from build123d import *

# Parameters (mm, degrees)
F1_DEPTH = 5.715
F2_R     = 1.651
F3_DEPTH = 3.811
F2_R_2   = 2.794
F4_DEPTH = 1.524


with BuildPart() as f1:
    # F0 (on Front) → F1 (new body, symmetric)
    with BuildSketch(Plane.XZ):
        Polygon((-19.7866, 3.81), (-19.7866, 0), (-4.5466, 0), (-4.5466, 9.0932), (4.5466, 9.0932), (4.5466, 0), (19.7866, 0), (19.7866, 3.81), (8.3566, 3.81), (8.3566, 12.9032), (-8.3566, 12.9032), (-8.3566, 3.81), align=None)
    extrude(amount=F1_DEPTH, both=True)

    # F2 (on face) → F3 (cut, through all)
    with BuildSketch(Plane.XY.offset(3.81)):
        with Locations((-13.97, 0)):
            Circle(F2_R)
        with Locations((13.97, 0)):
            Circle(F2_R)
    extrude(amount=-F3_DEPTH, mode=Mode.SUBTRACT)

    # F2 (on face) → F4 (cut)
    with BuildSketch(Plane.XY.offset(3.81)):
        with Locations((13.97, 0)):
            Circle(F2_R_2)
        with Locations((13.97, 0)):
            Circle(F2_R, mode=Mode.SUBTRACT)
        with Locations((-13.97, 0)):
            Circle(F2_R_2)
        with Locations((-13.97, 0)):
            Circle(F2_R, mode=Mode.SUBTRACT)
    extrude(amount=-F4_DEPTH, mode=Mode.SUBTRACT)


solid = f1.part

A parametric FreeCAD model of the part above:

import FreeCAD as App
import Part
import Sketcher
Q = App.Units.Quantity

doc = App.newDocument("Part")
body = doc.addObject("PartDesign::Body", "Body")

# Sketch on XZ plane
sketch1 = body.newObject("Sketcher::SketchObject", "Sketch")
sketch1.AttachmentSupport = (doc.getObject("XZ_Plane"), [""])
sketch1.MapMode = "FlatFace"
sketch1.addGeometry([
    Part.LineSegment(App.Vector(-19.8, 3.8, 0), App.Vector(-19.8, 0, 0)),  # 0
    Part.LineSegment(App.Vector(-19.8, 0, 0), App.Vector(-4.5, 0, 0)),  # 1
    Part.LineSegment(App.Vector(-4.5, 0, 0), App.Vector(-4.5, 9.1, 0)),  # 2
    Part.LineSegment(App.Vector(-4.5, 9.1, 0), App.Vector(4.5, 9.1, 0)),  # 3
    Part.LineSegment(App.Vector(4.5, 9.1, 0), App.Vector(4.5, 0, 0)),  # 4
    Part.LineSegment(App.Vector(4.5, 0, 0), App.Vector(19.8, 0, 0)),  # 5
    Part.LineSegment(App.Vector(19.8, 0, 0), App.Vector(19.8, 3.8, 0)),  # 6
    Part.LineSegment(App.Vector(19.8, 3.8, 0), App.Vector(8.4, 3.8, 0)),  # 7
    Part.LineSegment(App.Vector(8.4, 3.8, 0), App.Vector(8.4, 12.9, 0)),  # 8
    Part.LineSegment(App.Vector(8.4, 12.9, 0), App.Vector(-8.4, 12.9, 0)),  # 9
    Part.LineSegment(App.Vector(-8.4, 12.9, 0), App.Vector(-8.4, 3.8, 0)),  # 10
    Part.LineSegment(App.Vector(-8.4, 3.8, 0), App.Vector(-19.8, 3.8, 0)),  # 11
], False)
sketch1.addConstraint([
    Sketcher.Constraint("Coincident", 0, 2, 1, 1),
    Sketcher.Constraint("Coincident", 1, 2, 2, 1),
    Sketcher.Constraint("Coincident", 2, 2, 3, 1),
    Sketcher.Constraint("Coincident", 3, 2, 4, 1),
    Sketcher.Constraint("Coincident", 4, 2, 5, 1),
    Sketcher.Constraint("Coincident", 5, 2, 6, 1),
    Sketcher.Constraint("Coincident", 6, 2, 7, 1),
    Sketcher.Constraint("Coincident", 7, 2, 8, 1),
    Sketcher.Constraint("Coincident", 8, 2, 9, 1),
    Sketcher.Constraint("Coincident", 9, 2, 10, 1),
    Sketcher.Constraint("Coincident", 10, 2, 11, 1),
    Sketcher.Constraint("Coincident", 11, 2, 0, 1),
    Sketcher.Constraint("Vertical", 0),
    Sketcher.Constraint("Horizontal", 1),
    Sketcher.Constraint("Vertical", 2),
    Sketcher.Constraint("Horizontal", 3),
    Sketcher.Constraint("Vertical", 4),
    Sketcher.Constraint("Horizontal", 5),
    Sketcher.Constraint("Vertical", 6),
    Sketcher.Constraint("Horizontal", 7),
    Sketcher.Constraint("Vertical", 8),
    Sketcher.Constraint("Horizontal", 9),
    Sketcher.Constraint("Vertical", 10),
    Sketcher.Constraint("Horizontal", 11),
    Sketcher.Constraint("Symmetric", 1, 2, 4, 2, -1, 1),
    Sketcher.Constraint("Symmetric", 0, 2, 5, 2, -2),
    Sketcher.Constraint("Symmetric", 7, 2, 10, 2, -2),
    Sketcher.Constraint("Equal", 3, 2),
    Sketcher.Constraint("Equal", 4, 8),
    Sketcher.Constraint("DistanceX", 1, 1, 1, 2, Q("0.6 in")),
    Sketcher.Constraint("DistanceX", 7, 2, 7, 1, Q("0.45 in")),
    Sketcher.Constraint("DistanceY", 0, 2, 0, 1, Q("0.15 in")),
    Sketcher.Constraint("DistanceX", 3, 1, 3, 2, Q("0.358 in")),
])
pad1 = body.newObject("PartDesign::Pad", "Pad")
pad1.Profile = sketch1
pad1.Length = Q("0.45 in")
pad1.Midplane = True

# Sketch on XY plane
sketch2 = body.newObject("Sketcher::SketchObject", "Sketch001")
sketch2.AttachmentSupport = (doc.getObject("XY_Plane"), [""])
sketch2.MapMode = "FlatFace"
sketch2.AttachmentOffset = App.Placement(App.Vector(0, 0, 0.15 * 25.4), App.Rotation())
sketch2.addGeometry([
    Part.Circle(App.Vector(-14, 0, 0), App.Vector(0, 0, 1), 1.7),
    Part.Circle(App.Vector(14, 0, 0), App.Vector(0, 0, 1), 1.7),
], False)
sketch2.addConstraint([
    Sketcher.Constraint("Equal", 0, 1),
    Sketcher.Constraint("Symmetric", 0, 3, 1, 3, -1, 1),
    Sketcher.Constraint("PointOnObject", 0, 3, -1),
    Sketcher.Constraint("Diameter", 0, Q("0.13 in")),
    Sketcher.Constraint("DistanceX", 0, 3, 1, 3, Q("1.1 in")),
])
pocket1 = body.newObject("PartDesign::Pocket", "Pocket")
pocket1.Profile = sketch2
pocket1.Type = "ThroughAll"

# Sketch on XY plane
sketch3 = body.newObject("Sketcher::SketchObject", "Sketch002")
sketch3.AttachmentSupport = (doc.getObject("XY_Plane"), [""])
sketch3.MapMode = "FlatFace"
sketch3.AttachmentOffset = App.Placement(App.Vector(0, 0, 0.15 * 25.4), App.Rotation())
sketch3.addGeometry([
    Part.Circle(App.Vector(14, 0, 0), App.Vector(0, 0, 1), 2.8),
    Part.Circle(App.Vector(14, 0, 0), App.Vector(0, 0, 1), 1.7),
    Part.Circle(App.Vector(-14, 0, 0), App.Vector(0, 0, 1), 2.8),
    Part.Circle(App.Vector(-14, 0, 0), App.Vector(0, 0, 1), 1.7),
], False)
sketch3.addConstraint([
    Sketcher.Constraint("Coincident", 1, 3, 0, 3),
    Sketcher.Constraint("Coincident", 3, 3, 2, 3),
    Sketcher.Constraint("Equal", 0, 2),
    Sketcher.Constraint("Equal", 1, 3),
    Sketcher.Constraint("Symmetric", 0, 3, 2, 3, -1, 1),
    Sketcher.Constraint("PointOnObject", 0, 3, -1),
    Sketcher.Constraint("Diameter", 0, Q("0.22 in")),
    Sketcher.Constraint("Diameter", 1, Q("0.13 in")),
    Sketcher.Constraint("DistanceX", 2, 3, 0, 3, Q("1.1 in")),
])
pocket2 = body.newObject("PartDesign::Pocket", "Pocket001")
pocket2.Profile = sketch3
pocket2.Length = Q("0.06 in")

doc.recompute()
